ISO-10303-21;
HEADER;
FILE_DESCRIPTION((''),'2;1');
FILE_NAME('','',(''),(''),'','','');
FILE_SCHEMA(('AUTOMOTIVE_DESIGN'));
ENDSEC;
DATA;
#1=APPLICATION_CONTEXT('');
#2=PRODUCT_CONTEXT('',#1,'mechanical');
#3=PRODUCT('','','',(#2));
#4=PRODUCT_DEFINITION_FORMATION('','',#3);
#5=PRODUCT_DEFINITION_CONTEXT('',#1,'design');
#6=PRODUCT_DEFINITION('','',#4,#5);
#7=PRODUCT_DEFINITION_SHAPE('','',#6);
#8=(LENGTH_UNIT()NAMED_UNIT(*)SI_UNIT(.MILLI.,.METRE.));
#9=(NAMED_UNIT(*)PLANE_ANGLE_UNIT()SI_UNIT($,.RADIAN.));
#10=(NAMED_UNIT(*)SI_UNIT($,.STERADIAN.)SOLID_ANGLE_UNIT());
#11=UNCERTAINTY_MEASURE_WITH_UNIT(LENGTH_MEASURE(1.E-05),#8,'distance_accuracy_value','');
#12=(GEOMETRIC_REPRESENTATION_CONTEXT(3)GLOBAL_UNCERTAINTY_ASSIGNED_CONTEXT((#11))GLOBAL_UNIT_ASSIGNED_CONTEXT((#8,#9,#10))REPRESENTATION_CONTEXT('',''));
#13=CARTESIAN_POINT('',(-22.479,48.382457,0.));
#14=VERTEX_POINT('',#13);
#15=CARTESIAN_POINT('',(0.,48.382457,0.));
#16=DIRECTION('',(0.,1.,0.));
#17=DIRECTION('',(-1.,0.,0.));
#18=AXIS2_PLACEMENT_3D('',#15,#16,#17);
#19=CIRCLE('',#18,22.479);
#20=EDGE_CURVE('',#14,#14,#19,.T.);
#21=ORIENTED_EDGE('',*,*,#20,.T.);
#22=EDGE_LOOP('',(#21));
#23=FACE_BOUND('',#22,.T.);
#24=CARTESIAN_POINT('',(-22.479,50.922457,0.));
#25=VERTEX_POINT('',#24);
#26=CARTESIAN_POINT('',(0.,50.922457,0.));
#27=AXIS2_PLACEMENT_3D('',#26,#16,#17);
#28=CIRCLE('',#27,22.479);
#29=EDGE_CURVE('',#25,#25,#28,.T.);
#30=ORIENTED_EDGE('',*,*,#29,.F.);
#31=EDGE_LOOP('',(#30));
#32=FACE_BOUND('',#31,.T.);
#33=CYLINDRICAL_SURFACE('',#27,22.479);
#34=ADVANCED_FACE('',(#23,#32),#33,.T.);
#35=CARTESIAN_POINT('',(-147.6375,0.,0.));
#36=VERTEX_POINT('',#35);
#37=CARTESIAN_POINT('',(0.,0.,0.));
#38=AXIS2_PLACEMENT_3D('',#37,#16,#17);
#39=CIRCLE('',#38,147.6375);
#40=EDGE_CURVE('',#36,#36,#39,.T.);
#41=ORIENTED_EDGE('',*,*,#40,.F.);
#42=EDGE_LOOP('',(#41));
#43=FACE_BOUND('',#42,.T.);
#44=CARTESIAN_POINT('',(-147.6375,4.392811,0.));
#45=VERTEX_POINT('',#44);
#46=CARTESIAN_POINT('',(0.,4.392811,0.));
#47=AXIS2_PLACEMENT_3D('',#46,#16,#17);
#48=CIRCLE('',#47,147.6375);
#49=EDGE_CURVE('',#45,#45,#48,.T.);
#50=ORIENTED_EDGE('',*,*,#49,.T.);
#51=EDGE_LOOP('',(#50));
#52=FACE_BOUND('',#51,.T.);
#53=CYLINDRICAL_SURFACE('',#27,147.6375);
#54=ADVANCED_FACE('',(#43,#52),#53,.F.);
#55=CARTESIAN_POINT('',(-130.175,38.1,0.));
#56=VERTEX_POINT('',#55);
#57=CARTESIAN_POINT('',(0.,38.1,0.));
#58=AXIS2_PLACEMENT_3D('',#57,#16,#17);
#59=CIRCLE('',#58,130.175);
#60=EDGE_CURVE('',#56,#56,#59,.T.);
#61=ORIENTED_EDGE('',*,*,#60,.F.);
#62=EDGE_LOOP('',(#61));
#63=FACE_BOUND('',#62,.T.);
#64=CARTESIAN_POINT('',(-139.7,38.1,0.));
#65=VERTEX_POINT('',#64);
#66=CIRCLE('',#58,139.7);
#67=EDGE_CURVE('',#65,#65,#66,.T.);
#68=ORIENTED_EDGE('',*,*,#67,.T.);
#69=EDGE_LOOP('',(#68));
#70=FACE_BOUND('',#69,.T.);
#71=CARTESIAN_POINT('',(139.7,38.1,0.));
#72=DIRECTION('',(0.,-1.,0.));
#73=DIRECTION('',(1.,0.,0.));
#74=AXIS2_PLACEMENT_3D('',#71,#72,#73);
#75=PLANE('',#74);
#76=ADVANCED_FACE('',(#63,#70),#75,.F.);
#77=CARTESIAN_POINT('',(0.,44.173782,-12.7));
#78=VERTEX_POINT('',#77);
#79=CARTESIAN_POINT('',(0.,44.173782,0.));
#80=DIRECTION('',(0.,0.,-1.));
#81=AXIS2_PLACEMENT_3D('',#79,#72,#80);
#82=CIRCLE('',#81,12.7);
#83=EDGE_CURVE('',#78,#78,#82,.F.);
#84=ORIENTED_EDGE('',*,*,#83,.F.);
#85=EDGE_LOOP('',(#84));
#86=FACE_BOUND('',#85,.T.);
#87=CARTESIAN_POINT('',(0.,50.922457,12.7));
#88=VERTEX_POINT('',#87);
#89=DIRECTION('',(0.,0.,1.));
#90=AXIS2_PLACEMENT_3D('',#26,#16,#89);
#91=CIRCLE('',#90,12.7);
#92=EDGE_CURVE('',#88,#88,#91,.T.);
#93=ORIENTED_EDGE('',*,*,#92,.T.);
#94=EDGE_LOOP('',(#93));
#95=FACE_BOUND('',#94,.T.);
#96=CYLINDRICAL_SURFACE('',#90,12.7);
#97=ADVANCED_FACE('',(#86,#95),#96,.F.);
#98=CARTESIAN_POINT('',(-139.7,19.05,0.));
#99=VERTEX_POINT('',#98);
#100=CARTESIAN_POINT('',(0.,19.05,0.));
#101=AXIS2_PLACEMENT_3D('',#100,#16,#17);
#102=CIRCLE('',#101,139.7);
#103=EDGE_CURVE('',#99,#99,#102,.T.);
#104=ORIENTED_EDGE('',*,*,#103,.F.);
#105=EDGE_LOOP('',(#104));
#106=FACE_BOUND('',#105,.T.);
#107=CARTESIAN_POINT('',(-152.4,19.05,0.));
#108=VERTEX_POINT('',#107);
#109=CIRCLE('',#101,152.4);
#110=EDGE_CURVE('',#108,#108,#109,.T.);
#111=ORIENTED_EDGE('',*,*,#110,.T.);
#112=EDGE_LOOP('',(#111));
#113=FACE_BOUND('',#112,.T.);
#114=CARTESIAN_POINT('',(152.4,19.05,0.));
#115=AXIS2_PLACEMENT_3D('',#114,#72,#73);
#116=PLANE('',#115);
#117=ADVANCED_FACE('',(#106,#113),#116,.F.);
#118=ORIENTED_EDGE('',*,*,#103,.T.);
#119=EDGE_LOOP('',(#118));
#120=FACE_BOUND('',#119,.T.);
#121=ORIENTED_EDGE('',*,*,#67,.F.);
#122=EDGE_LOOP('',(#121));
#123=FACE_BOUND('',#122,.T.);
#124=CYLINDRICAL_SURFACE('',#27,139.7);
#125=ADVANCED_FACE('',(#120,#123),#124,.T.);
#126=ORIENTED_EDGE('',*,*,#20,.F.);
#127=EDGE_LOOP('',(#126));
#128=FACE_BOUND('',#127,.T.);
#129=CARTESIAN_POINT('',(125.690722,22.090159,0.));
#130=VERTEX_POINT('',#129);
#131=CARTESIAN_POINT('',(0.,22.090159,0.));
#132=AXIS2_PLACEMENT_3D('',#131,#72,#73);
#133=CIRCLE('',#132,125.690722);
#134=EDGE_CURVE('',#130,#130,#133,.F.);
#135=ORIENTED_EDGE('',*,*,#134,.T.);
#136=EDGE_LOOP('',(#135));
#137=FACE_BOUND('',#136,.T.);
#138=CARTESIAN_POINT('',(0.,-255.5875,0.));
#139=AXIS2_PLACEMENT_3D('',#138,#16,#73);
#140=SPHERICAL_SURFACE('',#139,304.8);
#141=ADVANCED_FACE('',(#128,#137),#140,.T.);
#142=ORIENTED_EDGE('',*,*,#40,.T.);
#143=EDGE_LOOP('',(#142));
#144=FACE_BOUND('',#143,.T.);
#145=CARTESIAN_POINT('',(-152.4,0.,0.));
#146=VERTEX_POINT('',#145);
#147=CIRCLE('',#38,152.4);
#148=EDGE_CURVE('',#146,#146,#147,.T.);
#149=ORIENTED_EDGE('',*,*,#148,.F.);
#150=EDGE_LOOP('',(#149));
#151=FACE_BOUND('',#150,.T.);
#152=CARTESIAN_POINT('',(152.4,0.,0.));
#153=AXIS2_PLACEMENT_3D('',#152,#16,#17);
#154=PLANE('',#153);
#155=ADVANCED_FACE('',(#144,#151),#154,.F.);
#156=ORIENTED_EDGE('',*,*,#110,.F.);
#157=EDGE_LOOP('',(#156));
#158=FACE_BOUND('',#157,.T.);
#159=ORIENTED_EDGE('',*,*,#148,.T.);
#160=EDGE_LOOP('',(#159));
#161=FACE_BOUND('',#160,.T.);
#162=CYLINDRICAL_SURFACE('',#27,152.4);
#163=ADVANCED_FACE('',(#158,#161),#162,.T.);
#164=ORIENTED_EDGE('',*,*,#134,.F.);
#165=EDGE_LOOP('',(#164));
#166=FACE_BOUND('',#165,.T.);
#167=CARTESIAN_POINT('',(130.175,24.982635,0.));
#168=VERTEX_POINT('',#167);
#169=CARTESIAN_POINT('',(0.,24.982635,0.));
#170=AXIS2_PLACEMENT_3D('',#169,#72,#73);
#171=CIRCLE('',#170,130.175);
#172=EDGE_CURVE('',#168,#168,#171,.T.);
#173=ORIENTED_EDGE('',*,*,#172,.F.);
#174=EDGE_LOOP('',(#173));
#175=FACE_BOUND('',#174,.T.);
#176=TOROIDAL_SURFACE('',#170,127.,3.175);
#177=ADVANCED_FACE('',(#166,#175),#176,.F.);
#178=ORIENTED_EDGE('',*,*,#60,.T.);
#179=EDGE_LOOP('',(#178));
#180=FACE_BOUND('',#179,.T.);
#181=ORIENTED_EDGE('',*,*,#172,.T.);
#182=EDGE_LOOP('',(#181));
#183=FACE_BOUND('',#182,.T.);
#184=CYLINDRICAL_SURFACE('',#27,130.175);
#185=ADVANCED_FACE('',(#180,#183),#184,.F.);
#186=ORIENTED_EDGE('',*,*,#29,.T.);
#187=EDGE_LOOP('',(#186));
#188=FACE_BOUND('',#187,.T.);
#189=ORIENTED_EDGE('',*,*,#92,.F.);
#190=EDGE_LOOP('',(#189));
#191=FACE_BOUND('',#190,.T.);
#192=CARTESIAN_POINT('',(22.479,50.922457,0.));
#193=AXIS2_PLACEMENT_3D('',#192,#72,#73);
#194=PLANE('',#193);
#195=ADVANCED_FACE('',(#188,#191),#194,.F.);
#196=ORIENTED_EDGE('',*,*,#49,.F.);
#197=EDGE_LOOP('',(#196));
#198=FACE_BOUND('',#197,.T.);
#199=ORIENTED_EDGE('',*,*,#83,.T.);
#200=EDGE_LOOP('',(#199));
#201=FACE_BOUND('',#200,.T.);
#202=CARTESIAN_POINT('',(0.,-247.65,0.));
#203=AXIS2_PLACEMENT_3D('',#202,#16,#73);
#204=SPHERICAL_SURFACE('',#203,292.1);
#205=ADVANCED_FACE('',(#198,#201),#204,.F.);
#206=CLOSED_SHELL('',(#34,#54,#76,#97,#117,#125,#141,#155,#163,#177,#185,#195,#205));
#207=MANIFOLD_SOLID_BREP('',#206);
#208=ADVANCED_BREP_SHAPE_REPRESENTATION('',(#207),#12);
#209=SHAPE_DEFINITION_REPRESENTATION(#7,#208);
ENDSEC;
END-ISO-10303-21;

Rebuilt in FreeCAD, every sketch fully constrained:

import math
import FreeCAD as App
import Part
import Sketcher

V = App.Vector
Q = App.Units.Quantity


def edges_at(feature, points):
    """Names of the edges that pass closest to the given points."""
    edges = feature.Shape.Edges
    near = lambda p: min(range(len(edges)), key=lambda i: edges[i].distToShape(Part.Vertex(*p))[0])
    return sorted({f"Edge{near(p) + 1}" for p in points})

doc = App.newDocument("Part")
params = doc.addObject("Spreadsheet::Sheet", "Params")
for row, (alias, value) in enumerate([
    ("sketch1_radius", "12 in"),
    ("sketch1_radius2", "11.5 in"),
    ("sketch1_width", "0.5 in"),
    ("sketch1_height", "0.1 in"),
    ("sketch1_height2", "0.75 in"),
    ("revolution_angle", "360 deg"),
    ("fillet_radius", "0.125 in"),
    ("sketch2_diameter", "1 in"),
    ("hole_diameter", "1 in"),
], start=1):
    params.set(f"A{row}", alias)
    params.set(f"B{row}", "=" + value)
    params.setAlias(f"B{row}", alias)

body = doc.addObject("PartDesign::Body", "Body")

# Sketch on XY plane
sketch1 = body.newObject("Sketcher::SketchObject", "Sketch")
sketch1.AttachmentSupport = (doc.getObject("XY_Plane"), [""])
sketch1.MapMode = "FlatFace"
sketch1.addGeometry([
    Part.LineSegment(V(0, 50.9, 0), V(0, 44.5, 0)),  # 0
    Part.ArcOfCircle(Part.Circle(V(0, -247.6, 0), V(0, 0, 1), 292.1), math.radians(60), math.radians(90)),  # 1
    Part.LineSegment(V(147.6, 4.4, 0), V(147.6, 0, 0)),  # 2
    Part.LineSegment(V(147.6, 0, 0), V(152.4, 0, 0)),  # 3
    Part.LineSegment(V(152.4, 0, 0), V(152.4, 19.1, 0)),  # 4
    Part.LineSegment(V(152.4, 19.1, 0), V(139.7, 19.1, 0)),  # 5
    Part.LineSegment(V(139.7, 19.1, 0), V(139.7, 38.1, 0)),  # 6
    Part.LineSegment(V(139.7, 38.1, 0), V(130.2, 38.1, 0)),  # 7
    Part.LineSegment(V(130.2, 38.1, 0), V(130.2, 20, 0)),  # 8
    Part.ArcOfCircle(Part.Circle(V(0, -255.6, 0), V(0, 0, 1), 304.8), math.radians(65), math.radians(86)),  # 9
    Part.LineSegment(V(22.5, 48.4, 0), V(22.5, 50.9, 0)),  # 10
    Part.LineSegment(V(22.5, 50.9, 0), V(0, 50.9, 0)),  # 11
], False)
sketch1.addConstraint([
    Sketcher.Constraint("Coincident", 0, 2, 1, 2),
    Sketcher.Constraint("Coincident", 1, 1, 2, 1),
    Sketcher.Constraint("Coincident", 2, 2, 3, 1),
    Sketcher.Constraint("Coincident", 3, 2, 4, 1),
    Sketcher.Constraint("Coincident", 4, 2, 5, 1),
    Sketcher.Constraint("Coincident", 5, 2, 6, 1),
    Sketcher.Constraint("Coincident", 6, 2, 7, 1),
    Sketcher.Constraint("Coincident", 7, 2, 8, 1),
    Sketcher.Constraint("Coincident", 8, 2, 9, 1),
    Sketcher.Constraint("Coincident", 9, 2, 10, 1),
    Sketcher.Constraint("Coincident", 10, 2, 11, 1),
    Sketcher.Constraint("Coincident", 11, 2, 0, 1),
    Sketcher.Constraint("Vertical", 0),
    Sketcher.Constraint("Vertical", 2),
    Sketcher.Constraint("Horizontal", 3),
    Sketcher.Constraint("Vertical", 4),
    Sketcher.Constraint("Horizontal", 5),
    Sketcher.Constraint("Vertical", 6),
    Sketcher.Constraint("Horizontal", 7),
    Sketcher.Constraint("Vertical", 8),
    Sketcher.Constraint("Vertical", 10),
    Sketcher.Constraint("Horizontal", 11),
    Sketcher.Constraint("PointOnObject", 1, 3, -2),
    Sketcher.Constraint("PointOnObject", 9, 3, -2),
    Sketcher.Constraint("PointOnObject", 0, 2, -2),
    Sketcher.Constraint("PointOnObject", 2, 2, -1),
    Sketcher.Constraint("Equal", 4, 6),
    Sketcher.Constraint("Radius", 9, Q("12 in")),
    Sketcher.Constraint("Radius", 1, Q("11.5 in")),
    Sketcher.Constraint("DistanceX", 5, 2, 5, 1, Q("0.5 in")),
    Sketcher.Constraint("DistanceY", 10, 1, 10, 2, Q("0.1 in")),
    Sketcher.Constraint("DistanceX", -1, 1, 3, 2, Q("6 in")),
    Sketcher.Constraint("DistanceY", 4, 2, 0, 2, Q("1 in")),
    Sketcher.Constraint("DistanceY", 4, 1, 4, 2, Q("0.75 in")),
    Sketcher.Constraint("DistanceX", 3, 1, 3, 2, Q("0.1875 in")),
    Sketcher.Constraint("DistanceX", 7, 2, 7, 1, Q("0.375 in")),
    Sketcher.Constraint("DistanceX", 11, 2, 11, 1, Q("0.885 in")),
    Sketcher.Constraint("DistanceY", 9, 3, -1, 1, Q("10.0625 in")),
])
sketch1.setExpression("Constraints[27]", "Params.sketch1_radius")
sketch1.setExpression("Constraints[28]", "Params.sketch1_radius2")
sketch1.setExpression("Constraints[29]", "Params.sketch1_width")
sketch1.setExpression("Constraints[30]", "Params.sketch1_height")
sketch1.setExpression("Constraints[33]", "Params.sketch1_height2")
revolution = body.newObject("PartDesign::Revolution", "Revolution")
revolution.Profile = sketch1
revolution.ReferenceAxis = (sketch1, ["V_Axis"])
revolution.setExpression("Angle", "Params.revolution_angle")
doc.recompute()

fillet = body.newObject("PartDesign::Fillet", "Fillet")
fillet.Base = (revolution, edges_at(revolution, [(-130.175, 20.016, 0)]))
fillet.setExpression("Radius", "Params.fillet_radius")

# Sketch on XZ plane
sketch2 = body.newObject("Sketcher::SketchObject", "Sketch001")
sketch2.AttachmentSupport = (doc.getObject("XZ_Plane"), [""])
sketch2.MapMode = "FlatFace"
sketch2.AttachmentOffset = App.Placement(V(0, 0, -50.922457), App.Rotation())
sketch2.addGeometry(Part.Circle(V(0, 0, 0), V(0, 0, 1), 13), False)
sketch2.addConstraint([
    Sketcher.Constraint("Coincident", 0, 3, -1, 1),
    Sketcher.Constraint("Diameter", 0, Q("1 in")),
])
sketch2.setExpression("Constraints[1]", "Params.sketch2_diameter")
doc.recompute()
hole = body.newObject("PartDesign::Hole", "Hole")
hole.Profile = sketch2
hole.ThreadType = "None"
hole.setExpression("Diameter", "Params.hole_diameter")
hole.DepthType = "ThroughAll"
hole.Reversed = True

doc.recompute()
